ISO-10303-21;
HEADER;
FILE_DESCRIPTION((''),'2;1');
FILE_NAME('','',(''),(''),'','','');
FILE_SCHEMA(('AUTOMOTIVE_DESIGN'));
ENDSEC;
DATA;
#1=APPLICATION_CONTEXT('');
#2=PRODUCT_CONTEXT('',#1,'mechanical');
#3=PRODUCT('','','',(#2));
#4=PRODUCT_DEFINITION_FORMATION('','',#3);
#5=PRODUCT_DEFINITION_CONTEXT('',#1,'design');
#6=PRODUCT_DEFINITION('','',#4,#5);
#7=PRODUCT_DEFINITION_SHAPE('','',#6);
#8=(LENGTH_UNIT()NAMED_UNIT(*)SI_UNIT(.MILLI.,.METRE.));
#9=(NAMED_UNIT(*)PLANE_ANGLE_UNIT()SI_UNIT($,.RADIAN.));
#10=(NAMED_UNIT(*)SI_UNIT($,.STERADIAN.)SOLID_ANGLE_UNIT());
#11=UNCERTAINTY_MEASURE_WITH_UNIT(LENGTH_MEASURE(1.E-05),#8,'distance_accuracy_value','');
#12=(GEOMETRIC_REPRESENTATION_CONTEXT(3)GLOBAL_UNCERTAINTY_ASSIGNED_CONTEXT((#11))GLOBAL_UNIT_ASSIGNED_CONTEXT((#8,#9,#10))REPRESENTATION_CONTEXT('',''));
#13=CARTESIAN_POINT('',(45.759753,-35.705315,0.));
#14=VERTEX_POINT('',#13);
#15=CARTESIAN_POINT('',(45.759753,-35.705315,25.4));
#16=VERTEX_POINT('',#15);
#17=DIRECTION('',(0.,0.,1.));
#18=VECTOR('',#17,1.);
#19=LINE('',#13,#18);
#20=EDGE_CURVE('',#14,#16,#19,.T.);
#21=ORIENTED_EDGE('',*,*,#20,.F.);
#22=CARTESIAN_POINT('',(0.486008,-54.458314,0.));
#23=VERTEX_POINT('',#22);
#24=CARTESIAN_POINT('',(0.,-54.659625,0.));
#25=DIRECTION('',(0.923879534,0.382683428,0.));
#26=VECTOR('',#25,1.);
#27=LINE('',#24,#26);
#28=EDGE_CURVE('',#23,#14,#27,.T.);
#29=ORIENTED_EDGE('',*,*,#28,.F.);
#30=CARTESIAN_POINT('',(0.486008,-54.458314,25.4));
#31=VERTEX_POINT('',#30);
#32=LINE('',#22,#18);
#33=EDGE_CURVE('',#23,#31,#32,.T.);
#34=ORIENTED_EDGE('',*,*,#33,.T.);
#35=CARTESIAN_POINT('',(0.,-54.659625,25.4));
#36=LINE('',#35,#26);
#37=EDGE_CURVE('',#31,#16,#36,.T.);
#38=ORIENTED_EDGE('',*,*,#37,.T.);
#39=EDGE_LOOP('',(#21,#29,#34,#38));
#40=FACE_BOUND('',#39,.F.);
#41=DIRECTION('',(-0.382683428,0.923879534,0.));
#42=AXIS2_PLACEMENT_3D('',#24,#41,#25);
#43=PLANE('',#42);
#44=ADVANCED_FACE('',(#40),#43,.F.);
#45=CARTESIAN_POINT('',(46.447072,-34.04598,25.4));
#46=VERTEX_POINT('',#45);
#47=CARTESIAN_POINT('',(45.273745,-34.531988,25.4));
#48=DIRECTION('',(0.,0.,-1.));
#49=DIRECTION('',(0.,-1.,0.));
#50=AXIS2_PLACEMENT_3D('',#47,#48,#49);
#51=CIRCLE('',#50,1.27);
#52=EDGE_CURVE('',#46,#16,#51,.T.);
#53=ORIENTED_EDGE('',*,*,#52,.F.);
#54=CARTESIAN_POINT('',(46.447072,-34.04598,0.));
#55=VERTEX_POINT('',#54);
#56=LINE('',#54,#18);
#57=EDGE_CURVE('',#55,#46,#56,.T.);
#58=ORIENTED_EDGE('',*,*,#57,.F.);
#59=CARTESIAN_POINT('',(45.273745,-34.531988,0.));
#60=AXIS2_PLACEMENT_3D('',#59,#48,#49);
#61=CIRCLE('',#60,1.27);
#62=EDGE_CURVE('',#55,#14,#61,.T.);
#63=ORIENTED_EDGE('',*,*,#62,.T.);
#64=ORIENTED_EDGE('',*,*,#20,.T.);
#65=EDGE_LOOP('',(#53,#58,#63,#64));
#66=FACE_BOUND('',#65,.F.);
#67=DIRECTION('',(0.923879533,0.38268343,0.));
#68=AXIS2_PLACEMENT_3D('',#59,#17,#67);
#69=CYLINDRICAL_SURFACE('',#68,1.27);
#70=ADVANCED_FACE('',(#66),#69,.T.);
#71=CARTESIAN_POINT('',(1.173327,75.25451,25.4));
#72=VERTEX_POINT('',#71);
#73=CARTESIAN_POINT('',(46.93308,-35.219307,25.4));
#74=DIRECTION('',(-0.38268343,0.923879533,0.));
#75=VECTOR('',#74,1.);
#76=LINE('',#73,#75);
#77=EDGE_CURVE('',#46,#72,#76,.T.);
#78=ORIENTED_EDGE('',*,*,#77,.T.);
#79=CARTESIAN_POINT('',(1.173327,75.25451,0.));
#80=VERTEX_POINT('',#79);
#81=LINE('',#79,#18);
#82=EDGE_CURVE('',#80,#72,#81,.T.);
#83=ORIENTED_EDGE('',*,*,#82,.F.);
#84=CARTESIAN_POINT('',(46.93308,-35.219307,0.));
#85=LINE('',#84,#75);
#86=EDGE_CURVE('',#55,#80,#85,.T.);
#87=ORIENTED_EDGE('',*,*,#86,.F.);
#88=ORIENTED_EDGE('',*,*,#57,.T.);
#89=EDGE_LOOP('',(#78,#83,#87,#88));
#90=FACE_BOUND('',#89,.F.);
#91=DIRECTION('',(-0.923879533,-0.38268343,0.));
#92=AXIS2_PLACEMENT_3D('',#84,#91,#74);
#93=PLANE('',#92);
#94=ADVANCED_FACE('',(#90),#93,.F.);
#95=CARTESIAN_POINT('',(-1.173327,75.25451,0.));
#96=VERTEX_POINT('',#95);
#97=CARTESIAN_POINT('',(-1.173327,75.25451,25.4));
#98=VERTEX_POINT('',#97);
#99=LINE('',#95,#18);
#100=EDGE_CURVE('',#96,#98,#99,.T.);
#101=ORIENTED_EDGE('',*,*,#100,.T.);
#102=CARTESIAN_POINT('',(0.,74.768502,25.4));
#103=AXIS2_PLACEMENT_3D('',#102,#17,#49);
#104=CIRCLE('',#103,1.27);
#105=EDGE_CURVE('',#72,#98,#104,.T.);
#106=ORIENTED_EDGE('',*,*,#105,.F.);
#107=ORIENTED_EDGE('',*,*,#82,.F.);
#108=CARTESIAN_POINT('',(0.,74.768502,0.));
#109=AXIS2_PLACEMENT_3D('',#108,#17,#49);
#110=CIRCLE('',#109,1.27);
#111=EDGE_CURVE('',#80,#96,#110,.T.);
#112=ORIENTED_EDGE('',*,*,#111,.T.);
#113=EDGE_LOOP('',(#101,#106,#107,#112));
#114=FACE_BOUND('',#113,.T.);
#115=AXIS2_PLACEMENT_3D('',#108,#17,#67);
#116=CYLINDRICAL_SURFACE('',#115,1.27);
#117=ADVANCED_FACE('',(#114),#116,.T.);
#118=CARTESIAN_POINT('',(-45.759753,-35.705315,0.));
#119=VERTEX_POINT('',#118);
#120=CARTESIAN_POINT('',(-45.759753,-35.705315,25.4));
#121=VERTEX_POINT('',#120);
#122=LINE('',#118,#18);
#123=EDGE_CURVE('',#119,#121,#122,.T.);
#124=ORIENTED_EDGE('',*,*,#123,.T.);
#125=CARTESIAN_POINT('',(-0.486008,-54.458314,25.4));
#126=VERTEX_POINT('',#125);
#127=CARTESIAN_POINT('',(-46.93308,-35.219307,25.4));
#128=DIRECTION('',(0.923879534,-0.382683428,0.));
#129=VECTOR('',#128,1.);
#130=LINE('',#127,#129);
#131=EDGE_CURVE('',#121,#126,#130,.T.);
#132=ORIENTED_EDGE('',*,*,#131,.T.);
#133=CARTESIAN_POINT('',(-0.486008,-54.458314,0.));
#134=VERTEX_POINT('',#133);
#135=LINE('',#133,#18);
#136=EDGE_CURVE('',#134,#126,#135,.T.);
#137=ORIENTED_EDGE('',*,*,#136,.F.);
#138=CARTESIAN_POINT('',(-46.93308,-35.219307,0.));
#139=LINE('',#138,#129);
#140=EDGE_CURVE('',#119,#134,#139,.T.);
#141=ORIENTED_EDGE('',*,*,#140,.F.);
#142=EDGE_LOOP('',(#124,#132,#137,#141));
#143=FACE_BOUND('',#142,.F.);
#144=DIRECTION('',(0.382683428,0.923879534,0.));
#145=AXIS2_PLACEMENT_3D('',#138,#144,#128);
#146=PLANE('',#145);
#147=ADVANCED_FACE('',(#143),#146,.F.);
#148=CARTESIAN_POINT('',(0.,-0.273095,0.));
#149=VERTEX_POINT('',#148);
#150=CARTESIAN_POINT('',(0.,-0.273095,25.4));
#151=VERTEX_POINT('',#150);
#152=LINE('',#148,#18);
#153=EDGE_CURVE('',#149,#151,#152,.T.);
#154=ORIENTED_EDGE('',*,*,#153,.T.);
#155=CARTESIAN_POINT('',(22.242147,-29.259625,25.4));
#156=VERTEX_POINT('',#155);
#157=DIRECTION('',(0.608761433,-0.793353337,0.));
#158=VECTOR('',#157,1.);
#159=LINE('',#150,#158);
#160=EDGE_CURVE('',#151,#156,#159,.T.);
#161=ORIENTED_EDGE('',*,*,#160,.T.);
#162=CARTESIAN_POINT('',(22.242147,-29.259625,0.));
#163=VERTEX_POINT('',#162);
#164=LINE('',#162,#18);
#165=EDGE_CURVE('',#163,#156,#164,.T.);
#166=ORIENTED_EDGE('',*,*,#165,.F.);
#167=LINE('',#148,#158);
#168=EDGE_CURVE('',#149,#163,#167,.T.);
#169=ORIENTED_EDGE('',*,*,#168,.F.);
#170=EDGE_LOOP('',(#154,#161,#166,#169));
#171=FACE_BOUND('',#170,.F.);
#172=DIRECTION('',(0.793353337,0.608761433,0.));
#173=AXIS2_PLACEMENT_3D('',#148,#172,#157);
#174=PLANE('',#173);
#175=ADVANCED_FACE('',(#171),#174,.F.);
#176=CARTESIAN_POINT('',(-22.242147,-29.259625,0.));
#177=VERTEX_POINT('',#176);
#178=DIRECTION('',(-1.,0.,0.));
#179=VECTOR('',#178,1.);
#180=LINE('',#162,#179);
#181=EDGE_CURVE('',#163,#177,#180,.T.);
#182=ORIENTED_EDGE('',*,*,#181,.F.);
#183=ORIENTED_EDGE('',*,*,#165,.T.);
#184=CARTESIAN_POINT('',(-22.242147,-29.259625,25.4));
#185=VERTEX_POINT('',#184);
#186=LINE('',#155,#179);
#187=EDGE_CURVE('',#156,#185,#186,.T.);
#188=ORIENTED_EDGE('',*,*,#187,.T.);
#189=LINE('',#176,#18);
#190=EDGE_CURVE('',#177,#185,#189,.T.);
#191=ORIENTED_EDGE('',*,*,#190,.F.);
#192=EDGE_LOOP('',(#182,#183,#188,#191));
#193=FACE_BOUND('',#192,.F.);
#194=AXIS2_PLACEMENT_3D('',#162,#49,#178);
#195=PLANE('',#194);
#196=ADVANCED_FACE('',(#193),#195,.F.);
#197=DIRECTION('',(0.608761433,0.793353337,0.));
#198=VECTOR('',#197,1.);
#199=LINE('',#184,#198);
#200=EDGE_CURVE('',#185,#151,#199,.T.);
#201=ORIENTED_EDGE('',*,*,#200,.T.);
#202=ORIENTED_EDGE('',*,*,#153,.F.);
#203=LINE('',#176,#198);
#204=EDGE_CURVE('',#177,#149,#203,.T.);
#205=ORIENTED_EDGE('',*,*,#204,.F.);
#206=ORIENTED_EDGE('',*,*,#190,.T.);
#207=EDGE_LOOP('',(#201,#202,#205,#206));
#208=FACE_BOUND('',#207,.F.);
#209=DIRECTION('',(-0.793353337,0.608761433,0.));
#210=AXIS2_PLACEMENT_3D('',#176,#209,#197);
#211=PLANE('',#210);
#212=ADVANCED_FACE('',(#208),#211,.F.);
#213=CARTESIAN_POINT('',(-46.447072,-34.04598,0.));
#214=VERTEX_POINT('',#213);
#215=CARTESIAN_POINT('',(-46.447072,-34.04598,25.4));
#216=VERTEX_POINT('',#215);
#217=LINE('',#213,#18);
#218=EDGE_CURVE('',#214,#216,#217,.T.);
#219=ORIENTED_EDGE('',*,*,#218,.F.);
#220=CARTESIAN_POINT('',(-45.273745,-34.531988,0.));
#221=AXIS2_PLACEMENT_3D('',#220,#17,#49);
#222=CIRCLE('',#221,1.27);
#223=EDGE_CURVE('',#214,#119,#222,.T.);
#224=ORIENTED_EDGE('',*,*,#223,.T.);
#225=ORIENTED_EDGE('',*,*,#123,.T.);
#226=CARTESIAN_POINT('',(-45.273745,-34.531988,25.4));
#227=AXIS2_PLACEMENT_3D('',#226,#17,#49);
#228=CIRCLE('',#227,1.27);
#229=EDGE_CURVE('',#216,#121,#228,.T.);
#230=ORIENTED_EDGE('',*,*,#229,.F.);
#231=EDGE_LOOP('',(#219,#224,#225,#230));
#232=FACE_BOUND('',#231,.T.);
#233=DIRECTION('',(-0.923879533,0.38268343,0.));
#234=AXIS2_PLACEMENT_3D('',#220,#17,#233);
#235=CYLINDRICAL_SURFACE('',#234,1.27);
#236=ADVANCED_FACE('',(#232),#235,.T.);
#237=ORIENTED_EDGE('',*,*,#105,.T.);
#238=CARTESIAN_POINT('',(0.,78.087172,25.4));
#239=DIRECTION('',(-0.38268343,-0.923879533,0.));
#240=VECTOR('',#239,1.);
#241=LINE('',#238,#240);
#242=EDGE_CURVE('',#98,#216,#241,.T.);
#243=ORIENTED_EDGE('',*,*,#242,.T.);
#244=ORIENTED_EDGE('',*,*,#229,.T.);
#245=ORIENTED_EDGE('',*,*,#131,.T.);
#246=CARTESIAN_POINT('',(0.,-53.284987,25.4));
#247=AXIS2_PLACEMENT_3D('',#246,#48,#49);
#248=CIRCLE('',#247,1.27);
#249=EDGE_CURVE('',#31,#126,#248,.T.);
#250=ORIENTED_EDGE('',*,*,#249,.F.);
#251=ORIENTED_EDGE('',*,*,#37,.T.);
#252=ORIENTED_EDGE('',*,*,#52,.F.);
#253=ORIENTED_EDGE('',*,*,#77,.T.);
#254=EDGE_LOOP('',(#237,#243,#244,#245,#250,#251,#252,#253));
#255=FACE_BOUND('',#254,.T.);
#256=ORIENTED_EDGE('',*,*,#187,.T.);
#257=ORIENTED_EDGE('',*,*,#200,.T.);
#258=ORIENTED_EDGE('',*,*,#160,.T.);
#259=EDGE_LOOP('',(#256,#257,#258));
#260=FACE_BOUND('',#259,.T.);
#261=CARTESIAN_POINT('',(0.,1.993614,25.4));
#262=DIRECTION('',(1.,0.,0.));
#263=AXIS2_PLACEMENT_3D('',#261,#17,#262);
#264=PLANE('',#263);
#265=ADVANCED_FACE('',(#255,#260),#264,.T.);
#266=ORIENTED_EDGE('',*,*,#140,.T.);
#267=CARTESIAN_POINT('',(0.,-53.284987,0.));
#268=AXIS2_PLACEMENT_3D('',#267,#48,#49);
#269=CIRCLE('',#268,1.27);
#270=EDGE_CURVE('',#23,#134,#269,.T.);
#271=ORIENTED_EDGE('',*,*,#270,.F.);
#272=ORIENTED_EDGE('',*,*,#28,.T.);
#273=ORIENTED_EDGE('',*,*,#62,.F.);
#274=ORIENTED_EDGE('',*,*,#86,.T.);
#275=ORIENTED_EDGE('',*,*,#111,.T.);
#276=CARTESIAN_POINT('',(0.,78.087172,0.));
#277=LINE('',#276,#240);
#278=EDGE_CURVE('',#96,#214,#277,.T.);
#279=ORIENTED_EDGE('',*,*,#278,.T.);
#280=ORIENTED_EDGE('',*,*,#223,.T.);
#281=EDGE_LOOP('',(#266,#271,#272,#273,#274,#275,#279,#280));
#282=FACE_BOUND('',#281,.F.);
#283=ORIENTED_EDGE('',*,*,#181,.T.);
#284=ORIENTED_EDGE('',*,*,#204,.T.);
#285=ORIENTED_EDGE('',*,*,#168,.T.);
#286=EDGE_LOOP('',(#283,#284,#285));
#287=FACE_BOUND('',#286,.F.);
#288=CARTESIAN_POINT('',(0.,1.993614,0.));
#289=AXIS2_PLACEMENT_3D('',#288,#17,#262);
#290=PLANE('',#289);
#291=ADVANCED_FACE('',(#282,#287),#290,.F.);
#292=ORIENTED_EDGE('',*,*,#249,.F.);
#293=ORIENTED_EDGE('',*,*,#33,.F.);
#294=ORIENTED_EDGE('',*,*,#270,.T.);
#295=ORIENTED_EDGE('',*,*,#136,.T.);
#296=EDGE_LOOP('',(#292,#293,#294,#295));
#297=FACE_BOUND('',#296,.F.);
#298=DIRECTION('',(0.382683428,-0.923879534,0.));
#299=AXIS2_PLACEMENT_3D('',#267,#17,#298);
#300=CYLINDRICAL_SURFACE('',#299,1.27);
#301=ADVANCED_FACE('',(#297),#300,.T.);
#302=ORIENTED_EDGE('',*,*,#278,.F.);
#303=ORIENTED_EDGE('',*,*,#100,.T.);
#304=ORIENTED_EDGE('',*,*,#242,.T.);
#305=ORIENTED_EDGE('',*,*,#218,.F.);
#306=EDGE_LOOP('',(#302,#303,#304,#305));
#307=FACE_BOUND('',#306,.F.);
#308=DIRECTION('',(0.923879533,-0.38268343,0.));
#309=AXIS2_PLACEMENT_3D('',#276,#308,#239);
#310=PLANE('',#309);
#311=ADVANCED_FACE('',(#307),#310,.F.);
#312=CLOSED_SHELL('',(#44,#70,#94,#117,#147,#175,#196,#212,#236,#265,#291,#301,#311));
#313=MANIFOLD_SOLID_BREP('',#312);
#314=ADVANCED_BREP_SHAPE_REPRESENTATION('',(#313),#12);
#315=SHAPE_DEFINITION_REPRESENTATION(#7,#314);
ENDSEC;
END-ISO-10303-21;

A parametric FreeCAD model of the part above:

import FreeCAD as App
import Part
import Sketcher

V = App.Vector
Q = App.Units.Quantity


def edges_at(feature, points):
    """Names of the edges that pass closest to the given points."""
    edges = feature.Shape.Edges
    near = lambda p: min(range(len(edges)), key=lambda i: edges[i].distToShape(Part.Vertex(*p))[0])
    return sorted({f"Edge{near(p) + 1}" for p in points})

doc = App.newDocument("Part")
body = doc.addObject("PartDesign::Body", "Body")

sketch1 = body.newObject("Sketcher::SketchObject", "Sketch")
sketch1.AttachmentSupport = (doc.getObject("XY_Plane"), [""])
sketch1.MapMode = "FlatFace"
sketch1.addGeometry([
    Part.LineSegment(V(46.93308, -35.219307, 0), V(0, 78.087172, 0)),
    Part.LineSegment(V(0, 78.087172, 0), V(-46.93308, -35.219307, 0)),
    Part.LineSegment(V(-46.93308, -35.219307, 0), V(0, -54.659625, 0)),
    Part.LineSegment(V(0, -54.659625, 0), V(46.93308, -35.219307, 0)),
    Part.LineSegment(V(0, -0.273095, 0), V(22.242147, -29.259625, 0)),
    Part.LineSegment(V(22.242147, -29.259625, 0), V(-22.242147, -29.259625, 0)),
    Part.LineSegment(V(-22.242147, -29.259625, 0), V(0, -0.273095, 0)),
], False)
sketch1.addConstraint([
    Sketcher.Constraint("Coincident", 0, 2, 1, 1),
    Sketcher.Constraint("Coincident", 1, 2, 2, 1),
    Sketcher.Constraint("Coincident", 2, 2, 3, 1),
    Sketcher.Constraint("Coincident", 3, 2, 0, 1),
    Sketcher.Constraint("Coincident", 4, 2, 5, 1),
    Sketcher.Constraint("Coincident", 5, 2, 6, 1),
    Sketcher.Constraint("Coincident", 6, 2, 4, 1),
    Sketcher.Constraint("Horizontal", 5),
    Sketcher.Constraint("Symmetric", 1, 2, 3, 2, -2),
    Sketcher.Constraint("PointOnObject", 0, 2, -2),
    Sketcher.Constraint("PointOnObject", 2, 2, -2),
    Sketcher.Constraint("PointOnObject", 6, 2, -2),
    Sketcher.Constraint("Perpendicular", 1, 2),
    Sketcher.Constraint("Equal", 4, 6),
    Sketcher.Constraint("Distance", 2, Q("2 in")),
    Sketcher.Constraint("DistanceY", 2, 2, 4, 2, Q("1 in")),
    Sketcher.Constraint("Angle", 0, Q("112.5 deg")),
    Sketcher.Constraint("Angle", 4, Q("-52.5 deg")),
    Sketcher.Constraint("Distance", 4, Q("36.536722 mm")),
    Sketcher.Constraint("DistanceY", -1, 1, 0, 2, Q("78.087172 mm")),
])
pad1 = body.newObject("PartDesign::Pad", "Pad")
pad1.Profile = sketch1
pad1.Length = Q("1 in")
doc.recompute()

fillet = body.newObject("PartDesign::Fillet", "Fillet")
fillet.Base = (pad1, edges_at(pad1, [
    (0, -54.66, 12.7),
    (46.933, -35.219, 12.7),
    (0, 78.087, 12.7),
    (-46.933, -35.219, 12.7),
]))
fillet.Radius = Q("0.05 in")

doc.recompute()
